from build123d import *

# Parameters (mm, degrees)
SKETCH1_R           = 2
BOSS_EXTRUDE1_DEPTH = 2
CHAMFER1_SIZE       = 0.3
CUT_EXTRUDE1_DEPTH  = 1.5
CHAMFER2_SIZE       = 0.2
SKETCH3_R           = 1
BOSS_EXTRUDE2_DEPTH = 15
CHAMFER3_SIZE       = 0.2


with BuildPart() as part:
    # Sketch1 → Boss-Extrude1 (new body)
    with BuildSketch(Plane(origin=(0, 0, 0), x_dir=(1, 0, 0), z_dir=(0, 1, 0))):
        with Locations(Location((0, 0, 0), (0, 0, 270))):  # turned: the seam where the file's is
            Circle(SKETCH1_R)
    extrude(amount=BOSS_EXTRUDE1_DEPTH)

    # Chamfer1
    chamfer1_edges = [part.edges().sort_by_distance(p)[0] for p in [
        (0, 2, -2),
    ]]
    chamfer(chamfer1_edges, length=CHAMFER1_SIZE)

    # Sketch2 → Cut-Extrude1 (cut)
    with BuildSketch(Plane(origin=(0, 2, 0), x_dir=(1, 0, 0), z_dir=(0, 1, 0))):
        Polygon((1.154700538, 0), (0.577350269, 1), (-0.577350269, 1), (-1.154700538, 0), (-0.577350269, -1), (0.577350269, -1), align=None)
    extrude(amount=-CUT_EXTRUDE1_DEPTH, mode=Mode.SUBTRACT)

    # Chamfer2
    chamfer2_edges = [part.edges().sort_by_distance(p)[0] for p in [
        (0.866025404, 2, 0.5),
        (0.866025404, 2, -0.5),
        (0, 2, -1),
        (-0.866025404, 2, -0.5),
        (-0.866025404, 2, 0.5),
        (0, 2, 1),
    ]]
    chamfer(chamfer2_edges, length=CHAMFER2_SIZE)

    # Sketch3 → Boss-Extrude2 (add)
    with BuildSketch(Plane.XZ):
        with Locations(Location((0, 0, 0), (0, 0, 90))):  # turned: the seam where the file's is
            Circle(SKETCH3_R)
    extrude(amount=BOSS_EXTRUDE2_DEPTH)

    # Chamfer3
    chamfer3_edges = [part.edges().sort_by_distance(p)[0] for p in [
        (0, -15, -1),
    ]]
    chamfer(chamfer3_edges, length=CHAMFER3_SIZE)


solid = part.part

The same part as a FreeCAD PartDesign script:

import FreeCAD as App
import Part
import Sketcher

V = App.Vector
Q = App.Units.Quantity


def edges_at(feature, points):
    """Names of the edges that pass closest to the given points."""
    edges = feature.Shape.Edges
    near = lambda p: min(range(len(edges)), key=lambda i: edges[i].distToShape(Part.Vertex(*p))[0])
    return sorted({f"Edge{near(p) + 1}" for p in points})


def add_polygon(sketch, points):
    """Adds a closed chain of lines whose ends are joined by coincident constraints."""
    first, n = sketch.GeometryCount, len(points)
    for a, b in zip(points, points[1:] + points[:1]):
        sketch.addGeometry(Part.LineSegment(App.Vector(*a, 0), App.Vector(*b, 0)), False)
    for i in range(n):
        sketch.addConstraint(Sketcher.Constraint("Coincident", first + i, 2, first + (i + 1) % n, 1))

doc = App.newDocument("Part")
body = doc.addObject("PartDesign::Body", "Body")

sketch1 = body.newObject("Sketcher::SketchObject", "Sketch")
sketch1.AttachmentSupport = (doc.getObject("XZ_Plane"), [""])
sketch1.MapMode = "FlatFace"
sketch1.addGeometry(Part.Circle(V(0, 0, 0), V(0, 0, 1), 2), False)
sketch1.addConstraint([
    Sketcher.Constraint("Coincident", 0, 3, -1, 1),
    Sketcher.Constraint("Diameter", 0, Q("4 mm")),
])
pad1 = body.newObject("PartDesign::Pad", "Pad")
pad1.Profile = sketch1
pad1.Length = 2
pad1.Reversed = True
doc.recompute()

chamfer = body.newObject("PartDesign::Chamfer", "Chamfer")
chamfer.Base = (pad1, edges_at(pad1, [(0, 2, -2)]))
chamfer.Size = 0.3

sketch2 = body.newObject("Sketcher::SketchObject", "Sketch001")
sketch2.AttachmentSupport = (doc.getObject("XZ_Plane"), [""])
sketch2.MapMode = "FlatFace"
sketch2.AttachmentOffset = App.Placement(V(0, 0, -2), App.Rotation())
add_polygon(sketch2, [(1.2, 0), (0.6, -1), (-0.6, -1), (-1.2, 0), (-0.6, 1), (0.6, 1)])
sketch2.addConstraint([
    Sketcher.Constraint("Horizontal", 1),
    Sketcher.Constraint("Horizontal", 4),
    Sketcher.Constraint("Symmetric", 0, 2, 3, 2, -1, 1),
    Sketcher.Constraint("Symmetric", 2, 2, 5, 2, -1, 1),
    Sketcher.Constraint("PointOnObject", 2, 2, -1),
    Sketcher.Constraint("Parallel", 2, 5),
    Sketcher.Constraint("Vertical", 1, 2, 3, 2),
    Sketcher.Constraint("Angle", 0, Q("-120 deg")),
    Sketcher.Constraint("DistanceY", 0, 2, -1, 1, Q("1 mm")),
    Sketcher.Constraint("DistanceX", 1, 2, 1, 1, Q("1.154701 mm")),
])
pocket1 = body.newObject("PartDesign::Pocket", "Pocket")
pocket1.Profile = sketch2
pocket1.Length = 1.5
pocket1.Reversed = True
doc.recompute()

chamfer2 = body.newObject("PartDesign::Chamfer", "Chamfer001")
chamfer2.Base = (pocket1, edges_at(pocket1, [
    (0.866, 2, 0.5),
    (0.866, 2, -0.5),
    (0, 2, -1),
    (-0.866, 2, -0.5),
    (-0.866, 2, 0.5),
    (0, 2, 1),
]))
chamfer2.Size = 0.2

sketch3 = body.newObject("Sketcher::SketchObject", "Sketch002")
sketch3.AttachmentSupport = (doc.getObject("XZ_Plane"), [""])
sketch3.MapMode = "FlatFace"
sketch3.addGeometry(Part.Circle(V(0, 0, 0), V(0, 0, 1), 1), False)
sketch3.addConstraint([
    Sketcher.Constraint("Coincident", 0, 3, -1, 1),
    Sketcher.Constraint("Diameter", 0, Q("2 mm")),
])
pad2 = body.newObject("PartDesign::Pad", "Pad001")
pad2.Profile = sketch3
pad2.Length = 15
doc.recompute()

chamfer3 = body.newObject("PartDesign::Chamfer", "Chamfer002")
chamfer3.Base = (pad2, edges_at(pad2, [(0, -15, -1)]))
chamfer3.Size = 0.2

doc.recompute()
